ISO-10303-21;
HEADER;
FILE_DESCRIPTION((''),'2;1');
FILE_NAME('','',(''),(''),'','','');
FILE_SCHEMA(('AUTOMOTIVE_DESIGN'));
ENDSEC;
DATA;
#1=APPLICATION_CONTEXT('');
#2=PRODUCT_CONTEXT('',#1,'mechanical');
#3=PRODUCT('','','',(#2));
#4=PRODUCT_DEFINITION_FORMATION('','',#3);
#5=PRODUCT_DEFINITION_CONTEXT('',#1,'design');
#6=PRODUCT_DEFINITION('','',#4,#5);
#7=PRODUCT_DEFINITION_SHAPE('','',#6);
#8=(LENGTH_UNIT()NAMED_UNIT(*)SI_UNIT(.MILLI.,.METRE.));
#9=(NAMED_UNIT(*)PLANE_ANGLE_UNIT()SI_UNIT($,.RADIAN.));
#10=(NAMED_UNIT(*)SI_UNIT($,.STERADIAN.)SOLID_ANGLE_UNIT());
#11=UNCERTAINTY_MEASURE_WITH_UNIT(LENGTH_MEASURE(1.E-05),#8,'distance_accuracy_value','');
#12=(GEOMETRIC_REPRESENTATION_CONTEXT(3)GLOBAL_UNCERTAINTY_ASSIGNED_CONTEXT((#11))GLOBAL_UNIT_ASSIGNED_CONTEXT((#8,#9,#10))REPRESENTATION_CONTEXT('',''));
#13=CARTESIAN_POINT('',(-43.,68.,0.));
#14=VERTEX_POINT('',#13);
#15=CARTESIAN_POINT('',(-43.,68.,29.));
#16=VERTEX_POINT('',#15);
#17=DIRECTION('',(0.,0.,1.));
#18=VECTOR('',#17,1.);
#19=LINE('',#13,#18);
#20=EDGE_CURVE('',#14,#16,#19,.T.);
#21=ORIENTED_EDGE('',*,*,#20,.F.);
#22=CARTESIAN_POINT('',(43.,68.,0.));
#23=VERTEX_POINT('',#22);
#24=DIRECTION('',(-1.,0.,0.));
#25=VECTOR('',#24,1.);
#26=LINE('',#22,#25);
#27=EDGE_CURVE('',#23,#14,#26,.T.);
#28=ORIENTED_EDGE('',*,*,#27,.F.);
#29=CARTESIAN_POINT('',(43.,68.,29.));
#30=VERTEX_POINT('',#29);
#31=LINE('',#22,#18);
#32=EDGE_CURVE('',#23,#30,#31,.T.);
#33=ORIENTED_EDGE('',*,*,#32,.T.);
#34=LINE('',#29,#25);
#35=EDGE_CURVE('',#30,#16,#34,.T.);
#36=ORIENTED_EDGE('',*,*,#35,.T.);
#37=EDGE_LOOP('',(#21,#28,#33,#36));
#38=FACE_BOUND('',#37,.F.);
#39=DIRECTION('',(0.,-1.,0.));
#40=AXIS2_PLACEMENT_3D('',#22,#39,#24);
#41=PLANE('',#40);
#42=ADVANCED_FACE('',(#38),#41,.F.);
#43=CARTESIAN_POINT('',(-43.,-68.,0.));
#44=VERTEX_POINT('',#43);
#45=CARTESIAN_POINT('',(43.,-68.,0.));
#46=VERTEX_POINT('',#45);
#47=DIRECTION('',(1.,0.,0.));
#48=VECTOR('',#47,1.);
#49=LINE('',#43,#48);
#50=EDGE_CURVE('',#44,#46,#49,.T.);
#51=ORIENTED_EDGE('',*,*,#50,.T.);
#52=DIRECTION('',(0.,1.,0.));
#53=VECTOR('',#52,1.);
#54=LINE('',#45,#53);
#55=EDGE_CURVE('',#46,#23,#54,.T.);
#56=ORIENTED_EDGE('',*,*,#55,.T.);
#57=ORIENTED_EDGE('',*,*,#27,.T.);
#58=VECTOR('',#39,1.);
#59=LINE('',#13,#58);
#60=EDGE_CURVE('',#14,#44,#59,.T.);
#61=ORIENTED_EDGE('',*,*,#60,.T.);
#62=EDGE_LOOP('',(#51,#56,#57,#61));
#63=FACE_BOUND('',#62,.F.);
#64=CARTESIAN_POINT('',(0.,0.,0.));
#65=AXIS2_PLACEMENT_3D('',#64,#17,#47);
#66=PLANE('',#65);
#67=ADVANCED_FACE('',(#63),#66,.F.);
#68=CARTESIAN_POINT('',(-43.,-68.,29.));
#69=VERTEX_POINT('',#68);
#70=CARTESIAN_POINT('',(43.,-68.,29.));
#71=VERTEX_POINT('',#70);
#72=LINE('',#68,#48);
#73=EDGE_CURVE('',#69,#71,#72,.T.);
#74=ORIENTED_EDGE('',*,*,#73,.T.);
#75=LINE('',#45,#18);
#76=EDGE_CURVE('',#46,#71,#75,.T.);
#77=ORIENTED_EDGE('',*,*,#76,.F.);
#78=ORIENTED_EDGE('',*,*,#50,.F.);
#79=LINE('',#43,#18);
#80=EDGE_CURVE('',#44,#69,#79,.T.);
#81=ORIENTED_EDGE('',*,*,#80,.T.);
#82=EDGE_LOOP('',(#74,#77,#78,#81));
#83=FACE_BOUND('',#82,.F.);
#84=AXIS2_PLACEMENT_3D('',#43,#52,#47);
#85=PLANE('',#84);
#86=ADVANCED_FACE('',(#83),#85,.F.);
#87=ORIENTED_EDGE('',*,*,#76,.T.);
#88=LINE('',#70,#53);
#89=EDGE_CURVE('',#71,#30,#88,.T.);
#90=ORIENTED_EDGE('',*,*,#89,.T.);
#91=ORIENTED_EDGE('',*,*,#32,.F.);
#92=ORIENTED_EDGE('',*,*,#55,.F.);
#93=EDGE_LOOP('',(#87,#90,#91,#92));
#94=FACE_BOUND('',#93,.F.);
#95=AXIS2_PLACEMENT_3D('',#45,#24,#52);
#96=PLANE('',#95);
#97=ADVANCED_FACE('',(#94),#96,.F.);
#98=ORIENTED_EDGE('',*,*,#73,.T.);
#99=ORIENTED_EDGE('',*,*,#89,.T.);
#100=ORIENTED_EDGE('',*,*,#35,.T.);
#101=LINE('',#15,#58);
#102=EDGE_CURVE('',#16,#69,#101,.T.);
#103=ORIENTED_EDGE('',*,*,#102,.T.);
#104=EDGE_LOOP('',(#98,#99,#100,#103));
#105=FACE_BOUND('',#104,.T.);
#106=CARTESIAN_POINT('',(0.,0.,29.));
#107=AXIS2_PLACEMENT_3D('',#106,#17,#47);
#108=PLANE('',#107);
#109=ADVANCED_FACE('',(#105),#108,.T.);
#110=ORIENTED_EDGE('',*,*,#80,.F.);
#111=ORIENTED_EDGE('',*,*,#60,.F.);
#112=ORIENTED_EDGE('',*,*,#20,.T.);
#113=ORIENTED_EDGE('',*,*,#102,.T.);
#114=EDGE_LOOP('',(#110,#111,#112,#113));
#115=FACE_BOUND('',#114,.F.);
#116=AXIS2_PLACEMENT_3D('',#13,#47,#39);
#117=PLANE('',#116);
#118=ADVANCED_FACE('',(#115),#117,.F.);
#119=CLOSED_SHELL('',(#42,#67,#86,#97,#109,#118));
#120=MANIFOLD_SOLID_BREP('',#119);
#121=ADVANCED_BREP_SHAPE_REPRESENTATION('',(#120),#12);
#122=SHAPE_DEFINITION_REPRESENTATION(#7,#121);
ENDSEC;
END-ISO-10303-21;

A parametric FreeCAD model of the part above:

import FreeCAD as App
import Part
import Sketcher


def add_polygon(sketch, points):
    """Adds a closed chain of lines whose ends are joined by coincident constraints."""
    first, n = sketch.GeometryCount, len(points)
    for a, b in zip(points, points[1:] + points[:1]):
        sketch.addGeometry(Part.LineSegment(App.Vector(*a, 0), App.Vector(*b, 0)), False)
    for i in range(n):
        sketch.addConstraint(Sketcher.Constraint("Coincident", first + i, 2, first + (i + 1) % n, 1))

doc = App.newDocument("Part")
body = doc.addObject("PartDesign::Body", "Body")

# Sketch on XY plane
sketch1 = body.newObject("Sketcher::SketchObject", "Sketch")
sketch1.AttachmentSupport = (doc.getObject("XY_Plane"), [""])
sketch1.MapMode = "FlatFace"
add_polygon(sketch1, [(43, -68), (43, 68), (-43, 68), (-43, -68)])  # lines 0-3
sketch1.addConstraint(Sketcher.Constraint("Vertical", 0))
sketch1.addConstraint(Sketcher.Constraint("Horizontal", 1))
sketch1.addConstraint(Sketcher.Constraint("Vertical", 2))
sketch1.addConstraint(Sketcher.Constraint("Horizontal", 3))
sketch1.addConstraint(Sketcher.Constraint("Symmetric", 0, 2, 2, 2, -1, 1))
sketch1.addConstraint(Sketcher.Constraint("DistanceX", 1, 2, 1, 1, 86.0))
sketch1.addConstraint(Sketcher.Constraint("DistanceY", 0, 1, 0, 2, 136.0))
pad1 = body.newObject("PartDesign::Pad", "Pad")
pad1.Profile = sketch1
pad1.Length = 29

doc.recompute()
